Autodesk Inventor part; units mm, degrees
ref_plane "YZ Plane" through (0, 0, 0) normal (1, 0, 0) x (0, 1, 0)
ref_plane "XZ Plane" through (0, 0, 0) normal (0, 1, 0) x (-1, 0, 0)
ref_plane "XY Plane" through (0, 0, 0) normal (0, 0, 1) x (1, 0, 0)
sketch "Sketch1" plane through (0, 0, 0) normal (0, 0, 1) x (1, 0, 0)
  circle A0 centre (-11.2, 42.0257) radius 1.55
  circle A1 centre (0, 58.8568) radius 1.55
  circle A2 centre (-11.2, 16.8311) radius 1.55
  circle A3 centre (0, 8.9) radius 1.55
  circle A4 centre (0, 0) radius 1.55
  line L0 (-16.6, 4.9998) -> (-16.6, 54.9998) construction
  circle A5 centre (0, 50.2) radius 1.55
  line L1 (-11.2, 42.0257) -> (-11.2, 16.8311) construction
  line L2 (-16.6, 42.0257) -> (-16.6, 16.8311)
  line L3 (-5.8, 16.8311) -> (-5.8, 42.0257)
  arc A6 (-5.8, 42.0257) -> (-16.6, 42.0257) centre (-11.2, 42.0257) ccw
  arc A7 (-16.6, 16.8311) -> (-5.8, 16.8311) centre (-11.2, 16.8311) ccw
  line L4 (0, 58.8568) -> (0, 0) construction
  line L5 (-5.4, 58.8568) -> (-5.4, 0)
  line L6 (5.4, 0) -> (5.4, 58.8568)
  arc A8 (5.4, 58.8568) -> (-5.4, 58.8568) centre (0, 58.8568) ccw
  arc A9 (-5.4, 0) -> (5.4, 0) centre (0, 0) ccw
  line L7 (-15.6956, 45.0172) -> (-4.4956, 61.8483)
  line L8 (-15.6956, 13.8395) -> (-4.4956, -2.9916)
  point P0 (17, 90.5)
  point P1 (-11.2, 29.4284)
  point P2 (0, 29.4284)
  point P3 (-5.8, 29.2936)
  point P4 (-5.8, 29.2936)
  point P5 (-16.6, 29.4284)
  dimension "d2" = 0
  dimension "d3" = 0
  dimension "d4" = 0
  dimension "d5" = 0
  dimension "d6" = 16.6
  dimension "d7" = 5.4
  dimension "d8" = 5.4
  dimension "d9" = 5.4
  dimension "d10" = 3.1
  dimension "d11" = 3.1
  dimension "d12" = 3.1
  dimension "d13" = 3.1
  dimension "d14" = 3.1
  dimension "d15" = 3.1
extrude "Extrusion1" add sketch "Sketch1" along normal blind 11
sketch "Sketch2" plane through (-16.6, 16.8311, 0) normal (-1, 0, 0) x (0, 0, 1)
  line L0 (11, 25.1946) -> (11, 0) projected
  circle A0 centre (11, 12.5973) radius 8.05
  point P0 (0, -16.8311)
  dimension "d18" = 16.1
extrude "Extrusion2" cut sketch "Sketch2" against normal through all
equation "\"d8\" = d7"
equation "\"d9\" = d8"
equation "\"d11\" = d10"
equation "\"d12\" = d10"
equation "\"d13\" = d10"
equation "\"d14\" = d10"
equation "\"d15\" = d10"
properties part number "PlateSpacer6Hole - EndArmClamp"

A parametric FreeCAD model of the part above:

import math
import FreeCAD as App
import Part
import Sketcher
from FreeCAD import Vector
Q = App.Units.Quantity

doc = App.newDocument("Part")
body = doc.addObject("PartDesign::Body", "Body")

# Sketch on XY plane
sketch1 = body.newObject("Sketcher::SketchObject", "Sketch")
sketch1.AttachmentSupport = (doc.getObject("XY_Plane"), [""])
sketch1.MapMode = "FlatFace"
sketch1.addGeometry(Part.ArcOfCircle(Part.Circle(Vector(-11.2, 42, 0), Vector(0, 0, 1), 5.4), math.radians(146), math.radians(180)), False)
sketch1.addGeometry(Part.LineSegment(Vector(-16.6, 42, 0), Vector(-16.6, 16.8, 0)), False)
sketch1.addGeometry(Part.ArcOfCircle(Part.Circle(Vector(-11.2, 16.8, 0), Vector(0, 0, 1), 5.4), math.radians(180), math.radians(214)), False)
sketch1.addGeometry(Part.LineSegment(Vector(-15.7, 13.8, 0), Vector(-4.5, -3, 0)), False)
sketch1.addGeometry(Part.ArcOfCircle(Part.Circle(Vector(0, 0, 0), Vector(0, 0, 1), 5.4), math.radians(-146), math.radians(0)), False)
sketch1.addGeometry(Part.LineSegment(Vector(5.4, 0, 0), Vector(5.4, 58.9, 0)), False)
sketch1.addGeometry(Part.ArcOfCircle(Part.Circle(Vector(0, 58.9, 0), Vector(0, 0, 1), 5.4), math.radians(0), math.radians(146)), False)
sketch1.addGeometry(Part.LineSegment(Vector(-4.5, 61.8, 0), Vector(-15.7, 45, 0)), False)
sketch1.addGeometry(Part.Circle(Vector(-11.2, 16.8, 0), Vector(0, 0, 1), 1.6), False)
sketch1.addGeometry(Part.Circle(Vector(-11.2, 42, 0), Vector(0, 0, 1), 1.6), False)
sketch1.addGeometry(Part.Circle(Vector(0, 8.9, 0), Vector(0, 0, 1), 1.6), False)
sketch1.addGeometry(Part.Circle(Vector(0, 50.2, 0), Vector(0, 0, 1), 1.6), False)
sketch1.addGeometry(Part.Circle(Vector(0, 58.9, 0), Vector(0, 0, 1), 1.6), False)
sketch1.addGeometry(Part.Circle(Vector(0, 0, 0), Vector(0, 0, 1), 1.6), False)
sketch1.addConstraint(Sketcher.Constraint("Tangent", 0, 2, 1, 1))
sketch1.addConstraint(Sketcher.Constraint("Tangent", 1, 2, 2, 1))
sketch1.addConstraint(Sketcher.Constraint("Tangent", 2, 2, 3, 1))
sketch1.addConstraint(Sketcher.Constraint("Tangent", 3, 2, 4, 1))
sketch1.addConstraint(Sketcher.Constraint("Tangent", 4, 2, 5, 1))
sketch1.addConstraint(Sketcher.Constraint("Tangent", 5, 2, 6, 1))
sketch1.addConstraint(Sketcher.Constraint("Tangent", 6, 2, 7, 1))
sketch1.addConstraint(Sketcher.Constraint("Tangent", 7, 2, 0, 1))
sketch1.addConstraint(Sketcher.Constraint("Vertical", 1))
sketch1.addConstraint(Sketcher.Constraint("Vertical", 5))
sketch1.addConstraint(Sketcher.Constraint("Coincident", 4, 3, -1, 1))
sketch1.addConstraint(Sketcher.Constraint("Coincident", 13, 3, -1, 1))
sketch1.addConstraint(Sketcher.Constraint("Coincident", 8, 3, 2, 3))
sketch1.addConstraint(Sketcher.Constraint("Coincident", 9, 3, 0, 3))
sketch1.addConstraint(Sketcher.Constraint("Coincident", 12, 3, 6, 3))
sketch1.addConstraint(Sketcher.Constraint("Equal", 0, 2))
sketch1.addConstraint(Sketcher.Constraint("Equal", 2, 4))
sketch1.addConstraint(Sketcher.Constraint("Equal", 4, 6))
sketch1.addConstraint(Sketcher.Constraint("Equal", 8, 9))
sketch1.addConstraint(Sketcher.Constraint("Equal", 9, 10))
sketch1.addConstraint(Sketcher.Constraint("Equal", 10, 11))
sketch1.addConstraint(Sketcher.Constraint("Equal", 11, 12))
sketch1.addConstraint(Sketcher.Constraint("Equal", 12, 13))
sketch1.addConstraint(Sketcher.Constraint("PointOnObject", 10, 3, -2))
sketch1.addConstraint(Sketcher.Constraint("PointOnObject", 11, 3, -2))
sketch1.addConstraint(Sketcher.Constraint("Vertical", 3, 2, 6, 2))
sketch1.addConstraint(Sketcher.Constraint("Diameter", 8, 3.1))
sketch1.addConstraint(Sketcher.Constraint("Radius", 0, 5.4))
sketch1.addConstraint(Sketcher.Constraint("DistanceX", 0, 2, -1, 1, 16.6))
sketch1.addConstraint(Sketcher.Constraint("DistanceY", -1, 1, 10, 3, 8.9))
sketch1.addConstraint(Sketcher.Constraint("DistanceY", -1, 1, 11, 3, 50.2))
sketch1.addConstraint(Sketcher.Constraint("Angle", 3, Q("-56.3588 deg")))
sketch1.addConstraint(Sketcher.Constraint("DistanceY", 1, 2, 1, 1, 25.1946))
pad1 = body.newObject("PartDesign::Pad", "Pad")
pad1.Profile = sketch1
pad1.Length = 11

# Sketch on YZ plane
sketch2 = body.newObject("Sketcher::SketchObject", "Sketch001")
sketch2.AttachmentSupport = (doc.getObject("YZ_Plane"), [""])
sketch2.MapMode = "FlatFace"
sketch2.AttachmentOffset = App.Placement(Vector(0, 0, -16.6), App.Rotation())
sketch2.addGeometry(Part.Circle(Vector(29, 11, 0), Vector(0, 0, 1), 8), False)
sketch2.addConstraint(Sketcher.Constraint("Diameter", 0, 16.1))
sketch2.addConstraint(Sketcher.Constraint("DistanceY", -1, 1, 0, 3, 11.0))
sketch2.addConstraint(Sketcher.Constraint("DistanceX", -1, 1, 0, 3, 29.4284))
pocket1 = body.newObject("PartDesign::Pocket", "Pocket")
pocket1.Profile = sketch2
pocket1.Type = "ThroughAll"
pocket1.Reversed = True

doc.recompute()
